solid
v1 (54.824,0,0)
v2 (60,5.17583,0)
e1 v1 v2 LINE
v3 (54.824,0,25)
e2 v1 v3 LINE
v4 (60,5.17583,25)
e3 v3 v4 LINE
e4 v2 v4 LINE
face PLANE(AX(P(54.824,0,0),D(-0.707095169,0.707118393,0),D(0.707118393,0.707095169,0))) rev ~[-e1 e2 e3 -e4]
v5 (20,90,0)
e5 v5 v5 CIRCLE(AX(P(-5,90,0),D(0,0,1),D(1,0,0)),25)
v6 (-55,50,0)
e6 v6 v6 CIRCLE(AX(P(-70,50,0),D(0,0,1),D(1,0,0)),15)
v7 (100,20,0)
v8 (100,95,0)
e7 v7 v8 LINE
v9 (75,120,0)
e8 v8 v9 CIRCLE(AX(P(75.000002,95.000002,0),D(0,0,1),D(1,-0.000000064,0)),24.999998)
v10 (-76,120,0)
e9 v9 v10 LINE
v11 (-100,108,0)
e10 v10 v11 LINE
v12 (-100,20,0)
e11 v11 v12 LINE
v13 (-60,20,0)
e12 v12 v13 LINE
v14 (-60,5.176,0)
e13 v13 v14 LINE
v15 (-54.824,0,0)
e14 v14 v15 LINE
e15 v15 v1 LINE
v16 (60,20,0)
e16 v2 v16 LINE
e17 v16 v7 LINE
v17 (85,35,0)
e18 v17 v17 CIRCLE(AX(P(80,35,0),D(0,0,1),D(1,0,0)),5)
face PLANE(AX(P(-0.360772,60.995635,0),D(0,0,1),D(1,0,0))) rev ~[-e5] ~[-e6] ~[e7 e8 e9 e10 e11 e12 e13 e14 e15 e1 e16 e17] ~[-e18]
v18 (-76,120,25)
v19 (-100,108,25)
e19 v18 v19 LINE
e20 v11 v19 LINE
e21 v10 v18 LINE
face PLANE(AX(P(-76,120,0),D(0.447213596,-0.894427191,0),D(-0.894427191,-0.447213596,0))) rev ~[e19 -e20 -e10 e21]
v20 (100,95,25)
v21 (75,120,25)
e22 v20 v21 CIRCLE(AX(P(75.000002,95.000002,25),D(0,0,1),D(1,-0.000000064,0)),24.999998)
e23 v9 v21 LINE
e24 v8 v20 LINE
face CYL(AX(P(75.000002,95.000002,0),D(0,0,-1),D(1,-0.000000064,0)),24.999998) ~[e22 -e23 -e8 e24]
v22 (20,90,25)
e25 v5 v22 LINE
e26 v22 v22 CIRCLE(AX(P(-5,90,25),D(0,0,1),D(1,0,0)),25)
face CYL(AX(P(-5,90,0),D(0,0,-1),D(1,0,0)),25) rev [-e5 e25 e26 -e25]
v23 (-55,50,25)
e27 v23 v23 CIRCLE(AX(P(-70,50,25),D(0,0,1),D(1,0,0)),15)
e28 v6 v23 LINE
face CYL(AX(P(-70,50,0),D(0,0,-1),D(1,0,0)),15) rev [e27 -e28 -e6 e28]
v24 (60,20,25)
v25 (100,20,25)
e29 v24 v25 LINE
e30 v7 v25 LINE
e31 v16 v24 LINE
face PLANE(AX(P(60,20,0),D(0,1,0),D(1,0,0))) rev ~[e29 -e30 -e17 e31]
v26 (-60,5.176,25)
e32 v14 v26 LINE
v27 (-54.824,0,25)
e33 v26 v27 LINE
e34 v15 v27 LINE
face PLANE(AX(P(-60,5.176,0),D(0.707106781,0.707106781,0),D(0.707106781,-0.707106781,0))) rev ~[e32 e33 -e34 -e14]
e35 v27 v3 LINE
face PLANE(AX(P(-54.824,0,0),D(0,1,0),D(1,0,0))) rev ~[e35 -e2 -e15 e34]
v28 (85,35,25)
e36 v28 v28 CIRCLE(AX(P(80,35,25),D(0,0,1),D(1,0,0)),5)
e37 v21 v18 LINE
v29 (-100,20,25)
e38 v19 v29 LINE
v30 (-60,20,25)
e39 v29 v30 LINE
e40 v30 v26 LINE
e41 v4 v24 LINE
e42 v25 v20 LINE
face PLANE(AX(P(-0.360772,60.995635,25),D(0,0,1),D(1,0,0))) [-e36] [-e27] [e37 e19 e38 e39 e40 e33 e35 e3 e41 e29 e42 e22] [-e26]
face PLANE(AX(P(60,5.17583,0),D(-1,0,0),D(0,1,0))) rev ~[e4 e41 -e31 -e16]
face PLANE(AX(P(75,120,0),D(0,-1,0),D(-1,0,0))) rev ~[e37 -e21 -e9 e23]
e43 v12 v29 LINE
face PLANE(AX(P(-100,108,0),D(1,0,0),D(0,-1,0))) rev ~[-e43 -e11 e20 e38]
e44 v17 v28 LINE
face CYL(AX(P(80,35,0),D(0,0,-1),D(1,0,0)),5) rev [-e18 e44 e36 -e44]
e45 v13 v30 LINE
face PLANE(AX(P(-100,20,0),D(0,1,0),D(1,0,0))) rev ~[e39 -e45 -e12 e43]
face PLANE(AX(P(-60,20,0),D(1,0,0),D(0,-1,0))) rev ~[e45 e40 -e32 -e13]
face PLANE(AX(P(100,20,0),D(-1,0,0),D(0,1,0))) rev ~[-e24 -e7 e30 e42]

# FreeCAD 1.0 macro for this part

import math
import FreeCAD as App
import Part
import Sketcher
from FreeCAD import Vector
Q = App.Units.Quantity

doc = App.newDocument("Part")
params = doc.addObject("Spreadsheet::Sheet", "Params")
for row, (alias, value) in enumerate([
    ("sketch1_diameter", "30 mm"),
    ("sketch1_diameter2", "10 mm"),
    ("sketch1_diameter3", "50 mm"),
    ("sketch1_width", "40 mm"),
    ("sketch1_width2", "151 mm"),
    ("pad1_length", "25 mm"),
], start=1):
    params.set(f"A{row}", alias)
    params.set(f"B{row}", "=" + value)
    params.setAlias(f"B{row}", alias)

body = doc.addObject("PartDesign::Body", "Body")

# Sketch on XY plane
sketch1 = body.newObject("Sketcher::SketchObject", "Sketch")
sketch1.AttachmentSupport = (doc.getObject("XY_Plane"), [""])
sketch1.MapMode = "FlatFace"
sketch1.addGeometry([
    Part.LineSegment(Vector(-55, 0, 0), Vector(55, 0, 0)),  # 0
    Part.LineSegment(Vector(55, 0, 0), Vector(60, 5, 0)),  # 1
    Part.LineSegment(Vector(60, 5, 0), Vector(60, 20, 0)),  # 2
    Part.LineSegment(Vector(60, 20, 0), Vector(100, 20, 0)),  # 3
    Part.LineSegment(Vector(100, 20, 0), Vector(100, 95, 0)),  # 4
    Part.ArcOfCircle(Part.Circle(Vector(75, 95, 0), Vector(0, 0, 1), 25), math.radians(0), math.radians(90)),  # 5
    Part.LineSegment(Vector(75, 120, 0), Vector(-76, 120, 0)),  # 6
    Part.LineSegment(Vector(-76, 120, 0), Vector(-100, 108, 0)),  # 7
    Part.LineSegment(Vector(-100, 108, 0), Vector(-100, 20, 0)),  # 8
    Part.LineSegment(Vector(-100, 20, 0), Vector(-60, 20, 0)),  # 9
    Part.LineSegment(Vector(-60, 20, 0), Vector(-60, 5, 0)),  # 10
    Part.LineSegment(Vector(-60, 5, 0), Vector(-55, 0, 0)),  # 11
    Part.Circle(Vector(-70, 50, 0), Vector(0, 0, 1), 15),  # 12
    Part.Circle(Vector(80, 35, 0), Vector(0, 0, 1), 5),  # 13
    Part.Circle(Vector(-5, 90, 0), Vector(0, 0, 1), 25),  # 14
], False)
sketch1.addConstraint([
    Sketcher.Constraint("Coincident", 0, 2, 1, 1),
    Sketcher.Constraint("Coincident", 1, 2, 2, 1),
    Sketcher.Constraint("Coincident", 2, 2, 3, 1),
    Sketcher.Constraint("Coincident", 3, 2, 4, 1),
    Sketcher.Constraint("Tangent", 4, 2, 5, 1),
    Sketcher.Constraint("Tangent", 5, 2, 6, 1),
    Sketcher.Constraint("Coincident", 6, 2, 7, 1),
    Sketcher.Constraint("Coincident", 7, 2, 8, 1),
    Sketcher.Constraint("Coincident", 8, 2, 9, 1),
    Sketcher.Constraint("Coincident", 9, 2, 10, 1),
    Sketcher.Constraint("Coincident", 10, 2, 11, 1),
    Sketcher.Constraint("Coincident", 11, 2, 0, 1),
    Sketcher.Constraint("Horizontal", 0),
    Sketcher.Constraint("Vertical", 2),
    Sketcher.Constraint("Horizontal", 3),
    Sketcher.Constraint("Vertical", 4),
    Sketcher.Constraint("Horizontal", 6),
    Sketcher.Constraint("Vertical", 8),
    Sketcher.Constraint("Horizontal", 9),
    Sketcher.Constraint("Vertical", 10),
    Sketcher.Constraint("Equal", 5, 14),
    Sketcher.Constraint("Symmetric", 0, 2, 11, 2, -1, 1),
    Sketcher.Constraint("Symmetric", 3, 2, 8, 2, -2),
    Sketcher.Constraint("Equal", 3, 9),
    Sketcher.Constraint("Diameter", 12, Q("30 mm")),
    Sketcher.Constraint("Diameter", 13, Q("10 mm")),
    Sketcher.Constraint("Diameter", 14, Q("50 mm")),
    Sketcher.Constraint("DistanceX", 3, 1, 3, 2, Q("40 mm")),
    Sketcher.Constraint("DistanceX", 6, 2, 6, 1, Q("151 mm")),
    Sketcher.Constraint("DistanceY", 4, 1, 4, 2, Q("75 mm")),
    Sketcher.Constraint("DistanceY", 8, 2, 8, 1, Q("88 mm")),
    Sketcher.Constraint("Angle", 11, Q("-45 deg")),
    Sketcher.Constraint("DistanceX", -1, 1, 5, 3, Q("75.000002 mm")),
    Sketcher.Constraint("DistanceY", -1, 1, 5, 3, Q("95.000002 mm")),
    Sketcher.Constraint("DistanceX", 12, 3, -1, 1, Q("70 mm")),
    Sketcher.Constraint("DistanceY", -1, 1, 12, 3, Q("50 mm")),
    Sketcher.Constraint("DistanceX", -1, 1, 13, 3, Q("80 mm")),
    Sketcher.Constraint("DistanceY", -1, 1, 13, 3, Q("35 mm")),
    Sketcher.Constraint("DistanceX", 14, 3, -1, 1, Q("5 mm")),
    Sketcher.Constraint("DistanceY", -1, 1, 14, 3, Q("90 mm")),
    Sketcher.Constraint("DistanceX", 0, 1, 0, 2, Q("109.648 mm")),
    Sketcher.Constraint("DistanceY", 2, 1, 2, 2, Q("14.82417 mm")),
])
sketch1.setExpression("Constraints[24]", "Params.sketch1_diameter")
sketch1.setExpression("Constraints[25]", "Params.sketch1_diameter2")
sketch1.setExpression("Constraints[26]", "Params.sketch1_diameter3")
sketch1.setExpression("Constraints[27]", "Params.sketch1_width")
sketch1.setExpression("Constraints[28]", "Params.sketch1_width2")
pad1 = body.newObject("PartDesign::Pad", "Pad")
pad1.Profile = sketch1
pad1.setExpression("Length", "Params.pad1_length")

doc.recompute()
